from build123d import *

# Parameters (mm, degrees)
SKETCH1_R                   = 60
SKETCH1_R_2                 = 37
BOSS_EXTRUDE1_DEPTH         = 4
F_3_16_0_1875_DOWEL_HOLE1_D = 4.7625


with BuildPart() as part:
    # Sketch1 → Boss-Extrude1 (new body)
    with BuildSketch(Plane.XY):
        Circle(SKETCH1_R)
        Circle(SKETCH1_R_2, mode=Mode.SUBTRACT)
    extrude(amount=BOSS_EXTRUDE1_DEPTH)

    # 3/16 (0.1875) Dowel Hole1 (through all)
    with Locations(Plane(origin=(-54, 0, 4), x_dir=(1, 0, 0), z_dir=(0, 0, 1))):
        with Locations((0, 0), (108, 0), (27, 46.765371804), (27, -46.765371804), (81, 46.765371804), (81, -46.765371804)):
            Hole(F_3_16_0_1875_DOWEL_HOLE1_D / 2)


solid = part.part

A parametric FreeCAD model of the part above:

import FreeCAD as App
import Part
import Sketcher

V = App.Vector
Q = App.Units.Quantity

doc = App.newDocument("Part")
params = doc.addObject("Spreadsheet::Sheet", "Params")
for row, (alias, value) in enumerate([
    ("sketch1_diameter", "120 mm"),
    ("sketch1_diameter2", "74 mm"),
    ("pad1_length", "4 mm"),
    ("hole_diameter", "4.7625 mm"),
], start=1):
    params.set(f"A{row}", alias)
    params.set(f"B{row}", "=" + value)
    params.setAlias(f"B{row}", alias)

body = doc.addObject("PartDesign::Body", "Body")

# Sketch on XY plane
sketch1 = body.newObject("Sketcher::SketchObject", "Sketch")
sketch1.AttachmentSupport = (doc.getObject("XY_Plane"), [""])
sketch1.MapMode = "FlatFace"
sketch1.addGeometry([
    Part.Circle(V(0, 0, 0), V(0, 0, 1), 60),
    Part.Circle(V(0, 0, 0), V(0, 0, 1), 37),
], False)
sketch1.addConstraint([
    Sketcher.Constraint("Coincident", 0, 3, -1, 1),
    Sketcher.Constraint("Coincident", 1, 3, -1, 1),
    Sketcher.Constraint("Diameter", 0, Q("120 mm")),
    Sketcher.Constraint("Diameter", 1, Q("74 mm")),
])
sketch1.setExpression("Constraints[2]", "Params.sketch1_diameter")
sketch1.setExpression("Constraints[3]", "Params.sketch1_diameter2")
pad1 = body.newObject("PartDesign::Pad", "Pad")
pad1.Profile = sketch1
pad1.setExpression("Length", "Params.pad1_length")

# Sketch on XY plane
sketch2 = body.newObject("Sketcher::SketchObject", "Sketch001")
sketch2.AttachmentSupport = (doc.getObject("XY_Plane"), [""])
sketch2.MapMode = "FlatFace"
sketch2.AttachmentOffset = App.Placement(V(0, 0, 4), App.Rotation())
sketch2.addGeometry([
    Part.Circle(V(-54, 0, 0), V(0, 0, 1), 2.4),  # 0
    Part.Circle(V(54, 0, 0), V(0, 0, 1), 2.4),  # 1
    Part.Circle(V(-27, 46.8, 0), V(0, 0, 1), 2.4),  # 2
    Part.Circle(V(-27, -46.8, 0), V(0, 0, 1), 2.4),  # 3
    Part.Circle(V(27, 46.8, 0), V(0, 0, 1), 2.4),  # 4
    Part.Circle(V(27, -46.8, 0), V(0, 0, 1), 2.4),  # 5
], False)
sketch2.addConstraint([
    Sketcher.Constraint("Equal", 0, 1),
    Sketcher.Constraint("Equal", 1, 2),
    Sketcher.Constraint("Equal", 2, 3),
    Sketcher.Constraint("Equal", 3, 4),
    Sketcher.Constraint("Equal", 4, 5),
    Sketcher.Constraint("Symmetric", 0, 3, 1, 3, -1, 1),
    Sketcher.Constraint("Symmetric", 3, 3, 4, 3, -1, 1),
    Sketcher.Constraint("Symmetric", 2, 3, 5, 3, -1, 1),
    Sketcher.Constraint("Symmetric", 2, 3, 4, 3, -2),
    Sketcher.Constraint("PointOnObject", 0, 3, -1),
    Sketcher.Constraint("DistanceX", 0, 3, -1, 1, Q("54 mm")),
    Sketcher.Constraint("DistanceX", 2, 3, -1, 1, Q("27 mm")),
    Sketcher.Constraint("Diameter", 0, Q("4.7625 mm")),
    Sketcher.Constraint("DistanceY", -1, 1, 2, 3, Q("46.765372 mm")),
])
doc.recompute()
hole = body.newObject("PartDesign::Hole", "Hole")
hole.Profile = sketch2
hole.ThreadType = "None"
hole.setExpression("Diameter", "Params.hole_diameter")
hole.DepthType = "ThroughAll"

doc.recompute()
